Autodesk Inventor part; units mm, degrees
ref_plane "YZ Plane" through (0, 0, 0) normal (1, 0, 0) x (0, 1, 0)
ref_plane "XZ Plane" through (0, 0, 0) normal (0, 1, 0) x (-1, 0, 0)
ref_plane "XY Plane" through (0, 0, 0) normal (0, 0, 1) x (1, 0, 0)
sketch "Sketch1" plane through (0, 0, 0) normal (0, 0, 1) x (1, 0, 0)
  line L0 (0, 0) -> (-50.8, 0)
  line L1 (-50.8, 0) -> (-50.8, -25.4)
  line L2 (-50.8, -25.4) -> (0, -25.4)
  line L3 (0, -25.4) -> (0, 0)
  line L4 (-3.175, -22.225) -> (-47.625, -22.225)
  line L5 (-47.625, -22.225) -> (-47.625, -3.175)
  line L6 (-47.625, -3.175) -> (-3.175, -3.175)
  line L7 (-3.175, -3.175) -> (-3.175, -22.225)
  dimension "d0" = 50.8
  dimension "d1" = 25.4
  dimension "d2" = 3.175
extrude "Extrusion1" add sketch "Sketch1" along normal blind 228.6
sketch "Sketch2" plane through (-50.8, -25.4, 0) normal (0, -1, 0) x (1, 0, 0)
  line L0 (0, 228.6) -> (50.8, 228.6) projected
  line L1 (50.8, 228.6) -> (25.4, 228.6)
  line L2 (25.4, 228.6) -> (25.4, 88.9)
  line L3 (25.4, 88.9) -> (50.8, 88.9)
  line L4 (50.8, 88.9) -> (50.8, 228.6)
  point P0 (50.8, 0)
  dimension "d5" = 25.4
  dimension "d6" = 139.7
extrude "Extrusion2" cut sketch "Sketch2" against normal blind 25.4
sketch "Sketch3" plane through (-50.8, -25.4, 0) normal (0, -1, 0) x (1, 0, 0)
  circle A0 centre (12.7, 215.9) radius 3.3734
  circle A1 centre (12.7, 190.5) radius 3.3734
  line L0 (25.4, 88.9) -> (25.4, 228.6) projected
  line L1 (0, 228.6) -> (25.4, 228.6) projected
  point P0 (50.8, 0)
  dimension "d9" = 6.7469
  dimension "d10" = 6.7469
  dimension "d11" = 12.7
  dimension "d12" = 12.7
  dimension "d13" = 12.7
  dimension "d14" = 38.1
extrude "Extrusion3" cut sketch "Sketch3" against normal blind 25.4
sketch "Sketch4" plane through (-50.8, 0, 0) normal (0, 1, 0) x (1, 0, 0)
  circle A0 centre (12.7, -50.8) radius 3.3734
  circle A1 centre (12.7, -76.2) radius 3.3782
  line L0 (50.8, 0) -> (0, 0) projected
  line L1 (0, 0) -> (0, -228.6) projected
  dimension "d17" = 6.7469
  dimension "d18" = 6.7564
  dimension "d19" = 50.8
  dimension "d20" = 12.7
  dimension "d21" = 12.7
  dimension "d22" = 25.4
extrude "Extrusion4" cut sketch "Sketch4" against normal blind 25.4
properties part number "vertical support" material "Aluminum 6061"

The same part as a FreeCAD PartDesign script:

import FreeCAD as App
import Part
import Sketcher
from FreeCAD import Vector
Q = App.Units.Quantity


def add_polygon(sketch, points):
    """Adds a closed chain of lines whose ends are joined by coincident constraints."""
    first, n = sketch.GeometryCount, len(points)
    for a, b in zip(points, points[1:] + points[:1]):
        sketch.addGeometry(Part.LineSegment(App.Vector(*a, 0), App.Vector(*b, 0)), False)
    for i in range(n):
        sketch.addConstraint(Sketcher.Constraint("Coincident", first + i, 2, first + (i + 1) % n, 1))

doc = App.newDocument("Part")
body = doc.addObject("PartDesign::Body", "Body")

sketch1 = body.newObject("Sketcher::SketchObject", "Sketch")
sketch1.AttachmentSupport = (doc.getObject("XY_Plane"), [""])
sketch1.MapMode = "FlatFace"
add_polygon(sketch1, [(0, -25), (0, 0), (-51, 0), (-51, -25)])
add_polygon(sketch1, [(-3, -3), (-3, -22), (-48, -22), (-48, -3)])
sketch1.addConstraint([
    Sketcher.Constraint("Vertical", 0),
    Sketcher.Constraint("Horizontal", 1),
    Sketcher.Constraint("Vertical", 2),
    Sketcher.Constraint("Horizontal", 3),
    Sketcher.Constraint("Vertical", 4),
    Sketcher.Constraint("Horizontal", 5),
    Sketcher.Constraint("Vertical", 6),
    Sketcher.Constraint("Horizontal", 7),
    Sketcher.Constraint("Coincident", 0, 2, -1, 1),
    Sketcher.Constraint("DistanceX", 1, 2, 1, 1, Q("2 in")),
    Sketcher.Constraint("DistanceY", 0, 1, 0, 2, Q("1 in")),
    Sketcher.Constraint("DistanceX", 4, 2, -1, 1, Q("0.125 in")),
    Sketcher.Constraint("DistanceY", 6, 2, -1, 1, Q("0.125 in")),
    Sketcher.Constraint("DistanceY", 3, 2, 4, 2, Q("0.125 in")),
    Sketcher.Constraint("DistanceX", 2, 2, 5, 2, Q("0.125 in")),
])
pad1 = body.newObject("PartDesign::Pad", "Pad")
pad1.Profile = sketch1
pad1.Length = Q("9 in")

sketch2 = body.newObject("Sketcher::SketchObject", "Sketch001")
sketch2.AttachmentSupport = (doc.getObject("XZ_Plane"), [""])
sketch2.MapMode = "FlatFace"
sketch2.AttachmentOffset = App.Placement(Vector(0, 0, 1 * 25.4), App.Rotation())
add_polygon(sketch2, [(0, 229), (-25, 229), (-25, 89), (0, 89)])
sketch2.addConstraint([
    Sketcher.Constraint("Horizontal", 0),
    Sketcher.Constraint("Vertical", 1),
    Sketcher.Constraint("Horizontal", 2),
    Sketcher.Constraint("Vertical", 3),
    Sketcher.Constraint("PointOnObject", 2, 2, -2),
    Sketcher.Constraint("DistanceX", 0, 2, 0, 1, Q("1 in")),
    Sketcher.Constraint("DistanceY", 1, 2, 1, 1, Q("5.5 in")),
    Sketcher.Constraint("DistanceY", -1, 1, 0, 2, Q("9 in")),
])
pocket1 = body.newObject("PartDesign::Pocket", "Pocket")
pocket1.Profile = sketch2
pocket1.Length = Q("1 in")

sketch3 = body.newObject("Sketcher::SketchObject", "Sketch002")
sketch3.AttachmentSupport = (doc.getObject("XZ_Plane"), [""])
sketch3.MapMode = "FlatFace"
sketch3.AttachmentOffset = App.Placement(Vector(0, 0, 1 * 25.4), App.Rotation())
sketch3.addGeometry([
    Part.Circle(Vector(-38.1, 215.9, 0), Vector(0, 0, 1), 3.4),
    Part.Circle(Vector(-38.1, 190.5, 0), Vector(0, 0, 1), 3.4),
], False)
sketch3.addConstraint([
    Sketcher.Constraint("Equal", 0, 1),
    Sketcher.Constraint("Vertical", 0, 3, 1, 3),
    Sketcher.Constraint("Diameter", 0, Q("0.265622 in")),
    Sketcher.Constraint("DistanceX", 0, 3, -1, 1, Q("1.5 in")),
    Sketcher.Constraint("DistanceY", 1, 3, 0, 3, Q("1 in")),
    Sketcher.Constraint("DistanceY", -1, 1, 0, 3, Q("8.5 in")),
])
pocket2 = body.newObject("PartDesign::Pocket", "Pocket001")
pocket2.Profile = sketch3
pocket2.Length = Q("1 in")

sketch4 = body.newObject("Sketcher::SketchObject", "Sketch003")
sketch4.AttachmentSupport = (doc.getObject("XZ_Plane"), [""])
sketch4.MapMode = "FlatFace"
sketch4.addGeometry([
    Part.Circle(Vector(-38.1, 50.8, 0), Vector(0, 0, 1), 3.4),
    Part.Circle(Vector(-38.1, 76.2, 0), Vector(0, 0, 1), 3.4),
], False)
sketch4.addConstraint([
    Sketcher.Constraint("Vertical", 0, 3, 1, 3),
    Sketcher.Constraint("Diameter", 0, Q("0.265622 in")),
    Sketcher.Constraint("Diameter", 1, Q("0.266 in")),
    Sketcher.Constraint("DistanceY", -1, 1, 0, 3, Q("2 in")),
    Sketcher.Constraint("DistanceY", 0, 3, 1, 3, Q("1 in")),
    Sketcher.Constraint("DistanceX", 0, 3, -1, 1, Q("1.5 in")),
])
pocket3 = body.newObject("PartDesign::Pocket", "Pocket002")
pocket3.Profile = sketch4
pocket3.Length = Q("1 in")
pocket3.Reversed = True

doc.recompute()
